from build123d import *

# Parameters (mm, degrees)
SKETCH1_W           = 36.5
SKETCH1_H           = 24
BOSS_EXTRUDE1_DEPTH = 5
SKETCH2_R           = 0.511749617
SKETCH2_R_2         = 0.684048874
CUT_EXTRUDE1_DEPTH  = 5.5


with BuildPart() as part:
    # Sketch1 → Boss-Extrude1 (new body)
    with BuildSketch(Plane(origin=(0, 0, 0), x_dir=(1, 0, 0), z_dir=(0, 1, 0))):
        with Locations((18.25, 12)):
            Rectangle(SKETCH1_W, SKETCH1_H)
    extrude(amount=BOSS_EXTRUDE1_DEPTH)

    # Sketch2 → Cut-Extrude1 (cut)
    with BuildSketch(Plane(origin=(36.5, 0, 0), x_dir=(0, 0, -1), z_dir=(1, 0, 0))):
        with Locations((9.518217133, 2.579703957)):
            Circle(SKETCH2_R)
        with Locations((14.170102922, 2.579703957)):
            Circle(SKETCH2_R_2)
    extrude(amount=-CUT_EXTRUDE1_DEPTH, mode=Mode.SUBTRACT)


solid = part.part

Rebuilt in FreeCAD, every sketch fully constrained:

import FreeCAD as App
import Part
import Sketcher
from FreeCAD import Vector


def add_polygon(sketch, points):
    """Adds a closed chain of lines whose ends are joined by coincident constraints."""
    first, n = sketch.GeometryCount, len(points)
    for a, b in zip(points, points[1:] + points[:1]):
        sketch.addGeometry(Part.LineSegment(App.Vector(*a, 0), App.Vector(*b, 0)), False)
    for i in range(n):
        sketch.addConstraint(Sketcher.Constraint("Coincident", first + i, 2, first + (i + 1) % n, 1))

doc = App.newDocument("Part")
body = doc.addObject("PartDesign::Body", "Body")

# Sketch on XZ plane
sketch1 = doc.addObject("Sketcher::SketchObject", "Sketch")
body.addObject(sketch1)
sketch1.AttachmentSupport = (doc.XZ_Plane, [""])
sketch1.MapMode = "FlatFace"
add_polygon(sketch1, [(0, -24), (0, 0), (36.5, 0), (36.5, -24)])  # lines 0-3
sketch1.addConstraint(Sketcher.Constraint("Vertical", 0))
sketch1.addConstraint(Sketcher.Constraint("Horizontal", 1))
sketch1.addConstraint(Sketcher.Constraint("Vertical", 2))
sketch1.addConstraint(Sketcher.Constraint("Horizontal", 3))
sketch1.addConstraint(Sketcher.Constraint("Coincident", 0, 2, -1, 1))
sketch1.addConstraint(Sketcher.Constraint("DistanceY", 0, 1, 0, 2, 24.0))
sketch1.addConstraint(Sketcher.Constraint("DistanceX", 1, 1, 1, 2, 36.5))
pad1 = doc.addObject("PartDesign::Pad", "Pad")
body.addObject(pad1)
pad1.Profile = sketch1
pad1.Length = 5
pad1.Reversed = True

# Sketch on YZ plane
sketch2 = doc.addObject("Sketcher::SketchObject", "Sketch001")
body.addObject(sketch2)
sketch2.AttachmentSupport = (doc.YZ_Plane, [""])
sketch2.MapMode = "FlatFace"
sketch2.AttachmentOffset = App.Placement(Vector(0, 0, 36.5), App.Rotation())
sketch2.addGeometry(Part.Circle(Vector(2.579704, -9.518217, 0), Vector(0, 0, 1), 0.51175), False)
sketch2.addGeometry(Part.Circle(Vector(2.579704, -14.170103, 0), Vector(0, 0, 1), 0.684049), False)
sketch2.addConstraint(Sketcher.Constraint("Vertical", 0, 3, 1, 3))
sketch2.addConstraint(Sketcher.Constraint("Diameter", 0, 1.023499))
sketch2.addConstraint(Sketcher.Constraint("Diameter", 1, 1.368098))
sketch2.addConstraint(Sketcher.Constraint("DistanceX", -1, 1, 0, 3, 2.579704))
sketch2.addConstraint(Sketcher.Constraint("DistanceY", 0, 3, -1, 1, 9.518217))
sketch2.addConstraint(Sketcher.Constraint("DistanceY", 1, 3, -1, 1, 14.170103))
pocket1 = doc.addObject("PartDesign::Pocket", "Pocket")
body.addObject(pocket1)
pocket1.Profile = sketch2
pocket1.Length = 5.5

doc.recompute()
